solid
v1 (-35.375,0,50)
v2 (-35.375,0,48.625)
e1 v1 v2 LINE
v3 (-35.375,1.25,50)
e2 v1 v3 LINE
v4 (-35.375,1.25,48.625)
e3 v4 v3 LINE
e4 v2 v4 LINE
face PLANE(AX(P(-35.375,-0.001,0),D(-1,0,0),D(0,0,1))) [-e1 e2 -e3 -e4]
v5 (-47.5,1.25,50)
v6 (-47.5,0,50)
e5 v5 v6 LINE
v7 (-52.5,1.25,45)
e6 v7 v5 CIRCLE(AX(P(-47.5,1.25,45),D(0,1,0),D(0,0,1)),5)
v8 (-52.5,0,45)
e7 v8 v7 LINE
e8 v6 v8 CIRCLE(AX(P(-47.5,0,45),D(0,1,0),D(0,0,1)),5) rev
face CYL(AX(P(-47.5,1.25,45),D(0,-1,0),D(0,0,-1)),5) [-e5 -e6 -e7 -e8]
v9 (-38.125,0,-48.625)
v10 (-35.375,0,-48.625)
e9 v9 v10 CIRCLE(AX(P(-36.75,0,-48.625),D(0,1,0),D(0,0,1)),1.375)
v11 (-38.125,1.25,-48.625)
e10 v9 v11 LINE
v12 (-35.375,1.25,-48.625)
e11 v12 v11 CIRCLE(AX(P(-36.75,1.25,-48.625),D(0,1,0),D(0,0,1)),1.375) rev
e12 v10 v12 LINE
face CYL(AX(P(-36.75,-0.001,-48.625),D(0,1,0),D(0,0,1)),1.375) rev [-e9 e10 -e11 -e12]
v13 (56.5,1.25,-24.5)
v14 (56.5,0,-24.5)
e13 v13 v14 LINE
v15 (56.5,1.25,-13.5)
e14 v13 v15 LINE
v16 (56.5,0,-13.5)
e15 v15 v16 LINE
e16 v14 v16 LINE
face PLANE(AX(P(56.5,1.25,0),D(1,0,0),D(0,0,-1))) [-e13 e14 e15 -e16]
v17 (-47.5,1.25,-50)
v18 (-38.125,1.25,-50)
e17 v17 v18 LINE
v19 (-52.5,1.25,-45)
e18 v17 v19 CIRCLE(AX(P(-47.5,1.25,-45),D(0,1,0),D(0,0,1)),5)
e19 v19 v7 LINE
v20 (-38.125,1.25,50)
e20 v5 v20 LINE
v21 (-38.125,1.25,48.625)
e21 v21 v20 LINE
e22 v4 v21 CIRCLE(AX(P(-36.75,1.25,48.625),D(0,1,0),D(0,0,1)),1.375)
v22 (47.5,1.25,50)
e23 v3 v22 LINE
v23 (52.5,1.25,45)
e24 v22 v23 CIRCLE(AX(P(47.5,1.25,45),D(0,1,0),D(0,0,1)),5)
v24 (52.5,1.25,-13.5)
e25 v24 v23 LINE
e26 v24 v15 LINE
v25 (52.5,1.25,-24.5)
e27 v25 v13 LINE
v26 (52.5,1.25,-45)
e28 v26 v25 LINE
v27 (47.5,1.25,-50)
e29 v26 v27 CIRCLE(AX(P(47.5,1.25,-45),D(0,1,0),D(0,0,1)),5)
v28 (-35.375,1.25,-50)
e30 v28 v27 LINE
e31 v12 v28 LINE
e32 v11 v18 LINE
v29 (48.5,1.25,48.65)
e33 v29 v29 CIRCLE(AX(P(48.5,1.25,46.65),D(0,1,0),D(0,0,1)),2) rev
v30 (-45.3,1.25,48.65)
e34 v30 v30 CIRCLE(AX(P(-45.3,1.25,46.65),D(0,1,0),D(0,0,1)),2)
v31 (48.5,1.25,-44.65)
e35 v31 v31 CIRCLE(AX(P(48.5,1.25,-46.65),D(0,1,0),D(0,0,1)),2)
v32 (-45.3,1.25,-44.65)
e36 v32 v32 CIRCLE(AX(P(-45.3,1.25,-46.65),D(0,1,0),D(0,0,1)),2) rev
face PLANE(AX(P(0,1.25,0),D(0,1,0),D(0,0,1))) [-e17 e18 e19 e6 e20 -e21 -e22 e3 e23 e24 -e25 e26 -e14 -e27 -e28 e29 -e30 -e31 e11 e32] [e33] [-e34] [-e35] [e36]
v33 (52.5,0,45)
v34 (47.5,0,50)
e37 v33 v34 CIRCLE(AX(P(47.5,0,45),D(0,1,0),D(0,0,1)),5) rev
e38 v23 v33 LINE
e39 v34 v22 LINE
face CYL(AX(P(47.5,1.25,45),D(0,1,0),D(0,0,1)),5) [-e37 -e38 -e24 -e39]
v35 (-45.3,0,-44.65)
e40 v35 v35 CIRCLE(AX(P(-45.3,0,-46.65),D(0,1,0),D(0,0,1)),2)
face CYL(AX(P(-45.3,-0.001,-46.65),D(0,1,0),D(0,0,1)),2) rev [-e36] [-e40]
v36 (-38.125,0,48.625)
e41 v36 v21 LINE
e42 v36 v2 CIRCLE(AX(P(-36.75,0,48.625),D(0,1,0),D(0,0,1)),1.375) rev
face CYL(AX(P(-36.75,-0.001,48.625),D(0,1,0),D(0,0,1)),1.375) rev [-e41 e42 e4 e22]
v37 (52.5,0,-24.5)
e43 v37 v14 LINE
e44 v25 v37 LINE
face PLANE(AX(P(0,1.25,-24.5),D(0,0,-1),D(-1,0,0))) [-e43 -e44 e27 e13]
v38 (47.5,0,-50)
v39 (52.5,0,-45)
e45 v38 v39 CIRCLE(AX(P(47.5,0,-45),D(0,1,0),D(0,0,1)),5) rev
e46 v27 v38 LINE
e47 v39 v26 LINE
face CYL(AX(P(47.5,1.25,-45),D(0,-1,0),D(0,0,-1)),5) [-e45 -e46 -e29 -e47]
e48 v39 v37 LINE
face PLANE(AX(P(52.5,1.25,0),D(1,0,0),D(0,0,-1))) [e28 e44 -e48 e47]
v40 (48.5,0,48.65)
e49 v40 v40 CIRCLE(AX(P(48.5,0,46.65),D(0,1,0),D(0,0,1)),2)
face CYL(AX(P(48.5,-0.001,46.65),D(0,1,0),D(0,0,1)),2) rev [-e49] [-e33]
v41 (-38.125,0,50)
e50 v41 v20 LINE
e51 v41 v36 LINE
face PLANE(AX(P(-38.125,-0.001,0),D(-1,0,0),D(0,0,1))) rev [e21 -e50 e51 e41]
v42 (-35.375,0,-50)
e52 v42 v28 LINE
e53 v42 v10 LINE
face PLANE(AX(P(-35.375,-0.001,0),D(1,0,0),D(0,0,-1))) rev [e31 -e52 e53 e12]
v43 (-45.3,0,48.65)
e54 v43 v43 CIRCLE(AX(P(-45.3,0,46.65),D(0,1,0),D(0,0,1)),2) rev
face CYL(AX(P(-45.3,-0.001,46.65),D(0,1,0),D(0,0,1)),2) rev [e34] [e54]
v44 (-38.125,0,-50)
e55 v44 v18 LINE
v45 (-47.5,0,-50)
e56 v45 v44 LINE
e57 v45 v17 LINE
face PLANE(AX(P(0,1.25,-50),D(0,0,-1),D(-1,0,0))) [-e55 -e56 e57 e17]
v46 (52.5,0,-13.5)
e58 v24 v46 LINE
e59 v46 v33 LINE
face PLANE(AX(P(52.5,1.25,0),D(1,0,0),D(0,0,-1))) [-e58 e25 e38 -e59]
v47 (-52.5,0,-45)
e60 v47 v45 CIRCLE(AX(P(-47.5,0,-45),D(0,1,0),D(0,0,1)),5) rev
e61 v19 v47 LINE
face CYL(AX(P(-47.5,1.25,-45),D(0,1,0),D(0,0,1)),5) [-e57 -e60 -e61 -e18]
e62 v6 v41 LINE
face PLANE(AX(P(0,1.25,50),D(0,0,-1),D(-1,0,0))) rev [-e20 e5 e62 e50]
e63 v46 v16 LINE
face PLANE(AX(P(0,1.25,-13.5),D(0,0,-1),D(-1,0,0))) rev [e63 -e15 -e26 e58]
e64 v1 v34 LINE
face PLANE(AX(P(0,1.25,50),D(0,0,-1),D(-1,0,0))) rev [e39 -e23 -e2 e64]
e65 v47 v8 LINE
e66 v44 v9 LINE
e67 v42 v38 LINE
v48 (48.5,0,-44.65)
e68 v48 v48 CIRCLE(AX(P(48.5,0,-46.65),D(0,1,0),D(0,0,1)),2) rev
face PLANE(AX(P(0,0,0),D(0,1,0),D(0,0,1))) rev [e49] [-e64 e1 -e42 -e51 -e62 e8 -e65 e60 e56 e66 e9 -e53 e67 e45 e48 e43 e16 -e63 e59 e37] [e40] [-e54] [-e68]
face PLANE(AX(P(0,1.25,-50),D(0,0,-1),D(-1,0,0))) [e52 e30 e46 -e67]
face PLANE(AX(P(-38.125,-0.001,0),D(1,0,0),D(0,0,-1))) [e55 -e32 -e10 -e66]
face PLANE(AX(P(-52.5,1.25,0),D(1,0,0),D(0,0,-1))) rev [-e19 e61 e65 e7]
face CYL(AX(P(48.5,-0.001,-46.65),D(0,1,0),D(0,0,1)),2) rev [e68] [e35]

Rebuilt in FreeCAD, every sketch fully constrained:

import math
import FreeCAD as App
import Part
import Sketcher
Q = App.Units.Quantity


def edges_at(feature, points):
    """Names of the edges that pass closest to the given points."""
    edges = feature.Shape.Edges
    near = lambda p: min(range(len(edges)), key=lambda i: edges[i].distToShape(Part.Vertex(*p))[0])
    return sorted({f"Edge{near(p) + 1}" for p in points})


def add_polygon(sketch, points):
    """Adds a closed chain of lines whose ends are joined by coincident constraints."""
    first, n = sketch.GeometryCount, len(points)
    for a, b in zip(points, points[1:] + points[:1]):
        sketch.addGeometry(Part.LineSegment(App.Vector(*a, 0), App.Vector(*b, 0)), False)
    for i in range(n):
        sketch.addConstraint(Sketcher.Constraint("Coincident", first + i, 2, first + (i + 1) % n, 1))

doc = App.newDocument("Part")
params = doc.addObject("Spreadsheet::Sheet", "Params")
for row, (alias, value) in enumerate([
    ("sketch1_width", "105 mm"),
    ("sketch1_width2", "4 mm"),
    ("sketch1_height", "100 mm"),
    ("sketch1_height2", "11 mm"),
    ("sketch1_height3", "63.5 mm"),
    ("pad1_length", "1.25 mm"),
    ("fillet_radius", "5 mm"),
    ("sketch2_diameter", "4 mm"),
    ("sketch3_diameter", "4 mm"),
    ("sketch4_diameter", "4 mm"),
    ("sketch5_diameter", "4 mm"),
    ("sketch6_diameter", "2.75 mm"),
    ("sketch10_diameter", "2.75 mm"),
], start=1):
    params.set(f"A{row}", alias)
    params.set(f"B{row}", "=" + value)
    params.setAlias(f"B{row}", alias)

body = doc.addObject("PartDesign::Body", "Body")

sketch1 = body.newObject("Sketcher::SketchObject", "Sketch")
sketch1.AttachmentSupport = (doc.getObject("XZ_Plane"), [""])
sketch1.MapMode = "FlatFace"
add_polygon(sketch1, [(-52.5, -50), (-52.5, 50), (52.5, 50), (52.5, -13.5), (56.5, -13.5), (56.5, -24.5), (52.5, -24.5), (52.5, -50)])
sketch1.addConstraint(Sketcher.Constraint("Vertical", 0))
sketch1.addConstraint(Sketcher.Constraint("Horizontal", 1))
sketch1.addConstraint(Sketcher.Constraint("Vertical", 2))
sketch1.addConstraint(Sketcher.Constraint("Horizontal", 3))
sketch1.addConstraint(Sketcher.Constraint("Vertical", 4))
sketch1.addConstraint(Sketcher.Constraint("Horizontal", 5))
sketch1.addConstraint(Sketcher.Constraint("Vertical", 6))
sketch1.addConstraint(Sketcher.Constraint("Horizontal", 7))
sketch1.addConstraint(Sketcher.Constraint("Symmetric", 0, 2, 6, 2, -1, 1))
sketch1.addConstraint(Sketcher.Constraint("Vertical", 2, 2, 5, 2))
sketch1.addConstraint(Sketcher.Constraint("DistanceX", 1, 1, 1, 2, Q("105 mm")))
sketch1.addConstraint(Sketcher.Constraint("DistanceX", 3, 1, 3, 2, Q("4 mm")))
sketch1.addConstraint(Sketcher.Constraint("DistanceY", 0, 1, 0, 2, Q("100 mm")))
sketch1.addConstraint(Sketcher.Constraint("DistanceY", 4, 2, 4, 1, Q("11 mm")))
sketch1.addConstraint(Sketcher.Constraint("DistanceY", 2, 2, 2, 1, Q("63.5 mm")))
sketch1.setExpression("Constraints[18]", "Params.sketch1_width")
sketch1.setExpression("Constraints[19]", "Params.sketch1_width2")
sketch1.setExpression("Constraints[20]", "Params.sketch1_height")
sketch1.setExpression("Constraints[21]", "Params.sketch1_height2")
sketch1.setExpression("Constraints[22]", "Params.sketch1_height3")
pad1 = body.newObject("PartDesign::Pad", "Pad")
pad1.Profile = sketch1
pad1.setExpression("Length", "Params.pad1_length")
pad1.Reversed = True
doc.recompute()

fillet = body.newObject("PartDesign::Fillet", "Fillet")
fillet.Base = (pad1, edges_at(pad1, [
    (52.5, 0.625, 50),
    (-52.5, 0.625, 50),
    (-52.5, 0.625, -50),
    (52.5, 0.625, -50),
]))
fillet.setExpression("Radius", "Params.fillet_radius")

sketch2 = body.newObject("Sketcher::SketchObject", "Sketch001")
sketch2.AttachmentSupport = (doc.getObject("XZ_Plane"), [""])
sketch2.MapMode = "FlatFace"
sketch2.AttachmentOffset = App.Placement(App.Vector(0, 0, -1.25), App.Rotation())
sketch2.addGeometry(Part.Circle(App.Vector(-45.3, -46.6, 0), App.Vector(0, 0, 1), 2), False)
sketch2.addConstraint(Sketcher.Constraint("Diameter", 0, Q("4 mm")))
sketch2.addConstraint(Sketcher.Constraint("DistanceX", 0, 3, -1, 1, Q("45.3 mm")))
sketch2.addConstraint(Sketcher.Constraint("DistanceY", 0, 3, -1, 1, Q("46.65 mm")))
sketch2.setExpression("Constraints[0]", "Params.sketch2_diameter")
pocket1 = body.newObject("PartDesign::Pocket", "Pocket")
pocket1.Profile = sketch2
pocket1.Type = "UpToFirst"
pocket1.Reversed = True

sketch3 = body.newObject("Sketcher::SketchObject", "Sketch002")
sketch3.AttachmentSupport = (doc.getObject("XZ_Plane"), [""])
sketch3.MapMode = "FlatFace"
sketch3.AttachmentOffset = App.Placement(App.Vector(0, 0, -1.25), App.Rotation())
sketch3.addGeometry(Part.Circle(App.Vector(48.5, -46.6, 0), App.Vector(0, 0, 1), 2), False)
sketch3.addConstraint(Sketcher.Constraint("Diameter", 0, Q("4 mm")))
sketch3.addConstraint(Sketcher.Constraint("DistanceX", -1, 1, 0, 3, Q("48.5 mm")))
sketch3.addConstraint(Sketcher.Constraint("DistanceY", 0, 3, -1, 1, Q("46.65 mm")))
sketch3.setExpression("Constraints[0]", "Params.sketch3_diameter")
pocket2 = body.newObject("PartDesign::Pocket", "Pocket001")
pocket2.Profile = sketch3
pocket2.Type = "UpToFirst"
pocket2.Reversed = True

sketch4 = body.newObject("Sketcher::SketchObject", "Sketch003")
sketch4.AttachmentSupport = (doc.getObject("XZ_Plane"), [""])
sketch4.MapMode = "FlatFace"
sketch4.AttachmentOffset = App.Placement(App.Vector(0, 0, -1.25), App.Rotation())
sketch4.addGeometry(Part.Circle(App.Vector(48.5, 46.6, 0), App.Vector(0, 0, 1), 2), False)
sketch4.addConstraint(Sketcher.Constraint("Diameter", 0, Q("4 mm")))
sketch4.addConstraint(Sketcher.Constraint("DistanceX", -1, 1, 0, 3, Q("48.5 mm")))
sketch4.addConstraint(Sketcher.Constraint("DistanceY", -1, 1, 0, 3, Q("46.65 mm")))
sketch4.setExpression("Constraints[0]", "Params.sketch4_diameter")
pocket3 = body.newObject("PartDesign::Pocket", "Pocket002")
pocket3.Profile = sketch4
pocket3.Type = "UpToFirst"
pocket3.Reversed = True

sketch5 = body.newObject("Sketcher::SketchObject", "Sketch004")
sketch5.AttachmentSupport = (doc.getObject("XZ_Plane"), [""])
sketch5.MapMode = "FlatFace"
sketch5.AttachmentOffset = App.Placement(App.Vector(0, 0, -1.25), App.Rotation())
sketch5.addGeometry(Part.Circle(App.Vector(-45.3, 46.6, 0), App.Vector(0, 0, 1), 2), False)
sketch5.addConstraint(Sketcher.Constraint("Diameter", 0, Q("4 mm")))
sketch5.addConstraint(Sketcher.Constraint("DistanceX", 0, 3, -1, 1, Q("45.3 mm")))
sketch5.addConstraint(Sketcher.Constraint("DistanceY", -1, 1, 0, 3, Q("46.65 mm")))
sketch5.setExpression("Constraints[0]", "Params.sketch5_diameter")
pocket4 = body.newObject("PartDesign::Pocket", "Pocket003")
pocket4.Profile = sketch5
pocket4.Type = "UpToFirst"
pocket4.Reversed = True

sketch6 = body.newObject("Sketcher::SketchObject", "Sketch005")
sketch6.AttachmentSupport = (doc.getObject("XZ_Plane"), [""])
sketch6.MapMode = "FlatFace"
sketch6.AttachmentOffset = App.Placement(App.Vector(0, 0, -1.25), App.Rotation())
sketch6.addGeometry(Part.Circle(App.Vector(-36.8, 48.6, 0), App.Vector(0, 0, 1), 1.4), False)
sketch6.addConstraint(Sketcher.Constraint("Diameter", 0, Q("2.75 mm")))
sketch6.addConstraint(Sketcher.Constraint("DistanceX", 0, 3, -1, 1, Q("36.75 mm")))
sketch6.addConstraint(Sketcher.Constraint("DistanceY", -1, 1, 0, 3, Q("48.625 mm")))
sketch6.setExpression("Constraints[0]", "Params.sketch6_diameter")
pocket5 = body.newObject("PartDesign::Pocket", "Pocket004")
pocket5.Profile = sketch6
pocket5.Type = "UpToFirst"
pocket5.Reversed = True

sketch7 = body.newObject("Sketcher::SketchObject", "Sketch006")
sketch7.AttachmentSupport = (doc.getObject("XZ_Plane"), [""])
sketch7.MapMode = "FlatFace"
sketch7.AttachmentOffset = App.Placement(App.Vector(0, 0, -1.25), App.Rotation())
sketch7.addGeometry(Part.ArcOfCircle(Part.Circle(App.Vector(-36.8, 48.6, 0), App.Vector(0, 0, 1), 1.4), math.radians(90), math.radians(180)), False)
sketch7.addGeometry(Part.LineSegment(App.Vector(-38.1, 48.6, 0), App.Vector(-38.1, 50, 0)), False)
sketch7.addGeometry(Part.LineSegment(App.Vector(-38.1, 50, 0), App.Vector(-36.8, 50, 0)), False)
sketch7.addConstraint(Sketcher.Constraint("Tangent", 0, 2, 1, 1))
sketch7.addConstraint(Sketcher.Constraint("Coincident", 1, 2, 2, 1))
sketch7.addConstraint(Sketcher.Constraint("Tangent", 2, 2, 0, 1))
sketch7.addConstraint(Sketcher.Constraint("Vertical", 1))
sketch7.addConstraint(Sketcher.Constraint("Horizontal", 2))
sketch7.addConstraint(Sketcher.Constraint("DistanceY", -1, 1, 1, 2, Q("50 mm")))
sketch7.addConstraint(Sketcher.Constraint("Radius", 0, Q("1.375 mm")))
sketch7.addConstraint(Sketcher.Constraint("DistanceX", 0, 3, -1, 1, Q("36.75 mm")))
pocket6 = body.newObject("PartDesign::Pocket", "Pocket005")
pocket6.Profile = sketch7
pocket6.Type = "UpToFirst"
pocket6.Reversed = True

sketch8 = body.newObject("Sketcher::SketchObject", "Sketch007")
sketch8.AttachmentSupport = (doc.getObject("XZ_Plane"), [""])
sketch8.MapMode = "FlatFace"
sketch8.AttachmentOffset = App.Placement(App.Vector(0, 0, -1.25), App.Rotation())
sketch8.addGeometry(Part.LineSegment(App.Vector(-35.4, 50, 0), App.Vector(-35.4, 48.6, 0)), False)
sketch8.addGeometry(Part.ArcOfCircle(Part.Circle(App.Vector(-36.8, 48.6, 0), App.Vector(0, 0, 1), 1.4), math.radians(0), math.radians(90)), False)
sketch8.addGeometry(Part.LineSegment(App.Vector(-36.8, 50, 0), App.Vector(-35.4, 50, 0)), False)
sketch8.addConstraint(Sketcher.Constraint("Tangent", 0, 2, 1, 1))
sketch8.addConstraint(Sketcher.Constraint("Tangent", 1, 2, 2, 1))
sketch8.addConstraint(Sketcher.Constraint("Coincident", 2, 2, 0, 1))
sketch8.addConstraint(Sketcher.Constraint("Vertical", 0))
sketch8.addConstraint(Sketcher.Constraint("Horizontal", 2))
sketch8.addConstraint(Sketcher.Constraint("DistanceY", -1, 1, 1, 2, Q("50 mm")))
sketch8.addConstraint(Sketcher.Constraint("Radius", 1, Q("1.375 mm")))
sketch8.addConstraint(Sketcher.Constraint("DistanceX", 1, 3, -1, 1, Q("36.75 mm")))
pocket7 = body.newObject("PartDesign::Pocket", "Pocket006")
pocket7.Profile = sketch8
pocket7.Type = "UpToFirst"
pocket7.Reversed = True

sketch9 = body.newObject("Sketcher::SketchObject", "Sketch008")
sketch9.AttachmentSupport = (doc.getObject("XZ_Plane"), [""])
sketch9.MapMode = "FlatFace"
sketch9.AttachmentOffset = App.Placement(App.Vector(0, 0, -1.25), App.Rotation())
sketch9.addGeometry(Part.LineSegment(App.Vector(-36.8, -50, 0), App.Vector(-38.1, -50, 0)), False)
sketch9.addGeometry(Part.LineSegment(App.Vector(-38.1, -50, 0), App.Vector(-38.1, -48.6, 0)), False)
sketch9.addGeometry(Part.ArcOfCircle(Part.Circle(App.Vector(-36.8, -48.6, 0), App.Vector(0, 0, 1), 1.4), math.radians(180), math.radians(270)), False)
sketch9.addConstraint(Sketcher.Constraint("Coincident", 0, 2, 1, 1))
sketch9.addConstraint(Sketcher.Constraint("Tangent", 1, 2, 2, 1))
sketch9.addConstraint(Sketcher.Constraint("Tangent", 2, 2, 0, 1))
sketch9.addConstraint(Sketcher.Constraint("Horizontal", 0))
sketch9.addConstraint(Sketcher.Constraint("Vertical", 1))
sketch9.addConstraint(Sketcher.Constraint("DistanceY", 0, 2, -1, 1, Q("50 mm")))
sketch9.addConstraint(Sketcher.Constraint("Radius", 2, Q("1.375 mm")))
sketch9.addConstraint(Sketcher.Constraint("DistanceX", 2, 3, -1, 1, Q("36.75 mm")))
pocket8 = body.newObject("PartDesign::Pocket", "Pocket007")
pocket8.Profile = sketch9
pocket8.Type = "UpToFirst"
pocket8.Reversed = True

sketch10 = body.newObject("Sketcher::SketchObject", "Sketch009")
sketch10.AttachmentSupport = (doc.getObject("XZ_Plane"), [""])
sketch10.MapMode = "FlatFace"
sketch10.AttachmentOffset = App.Placement(App.Vector(0, 0, -1.25), App.Rotation())
sketch10.addGeometry(Part.Circle(App.Vector(-36.8, -48.6, 0), App.Vector(0, 0, 1), 1.4), False)
sketch10.addConstraint(Sketcher.Constraint("Diameter", 0, Q("2.75 mm")))
sketch10.addConstraint(Sketcher.Constraint("DistanceX", 0, 3, -1, 1, Q("36.75 mm")))
sketch10.addConstraint(Sketcher.Constraint("DistanceY", 0, 3, -1, 1, Q("48.625 mm")))
sketch10.setExpression("Constraints[0]", "Params.sketch10_diameter")
pocket9 = body.newObject("PartDesign::Pocket", "Pocket008")
pocket9.Profile = sketch10
pocket9.Type = "UpToFirst"
pocket9.Reversed = True

sketch11 = body.newObject("Sketcher::SketchObject", "Sketch010")
sketch11.AttachmentSupport = (doc.getObject("XZ_Plane"), [""])
sketch11.MapMode = "FlatFace"
sketch11.AttachmentOffset = App.Placement(App.Vector(0, 0, -1.25), App.Rotation())
sketch11.addGeometry(Part.LineSegment(App.Vector(-35.4, -50, 0), App.Vector(-36.8, -50, 0)), False)
sketch11.addGeometry(Part.ArcOfCircle(Part.Circle(App.Vector(-36.8, -48.6, 0), App.Vector(0, 0, 1), 1.4), math.radians(-90), math.radians(0)), False)
sketch11.addGeometry(Part.LineSegment(App.Vector(-35.4, -48.6, 0), App.Vector(-35.4, -50, 0)), False)
sketch11.addConstraint(Sketcher.Constraint("Tangent", 0, 2, 1, 1))
sketch11.addConstraint(Sketcher.Constraint("Tangent", 1, 2, 2, 1))
sketch11.addConstraint(Sketcher.Constraint("Coincident", 2, 2, 0, 1))
sketch11.addConstraint(Sketcher.Constraint("Horizontal", 0))
sketch11.addConstraint(Sketcher.Constraint("Vertical", 2))
sketch11.addConstraint(Sketcher.Constraint("DistanceY", 0, 2, -1, 1, Q("50 mm")))
sketch11.addConstraint(Sketcher.Constraint("Radius", 1, Q("1.375 mm")))
sketch11.addConstraint(Sketcher.Constraint("DistanceX", 1, 3, -1, 1, Q("36.75 mm")))
pocket10 = body.newObject("PartDesign::Pocket", "Pocket009")
pocket10.Profile = sketch11
pocket10.Type = "UpToFirst"
pocket10.Reversed = True

doc.recompute()
